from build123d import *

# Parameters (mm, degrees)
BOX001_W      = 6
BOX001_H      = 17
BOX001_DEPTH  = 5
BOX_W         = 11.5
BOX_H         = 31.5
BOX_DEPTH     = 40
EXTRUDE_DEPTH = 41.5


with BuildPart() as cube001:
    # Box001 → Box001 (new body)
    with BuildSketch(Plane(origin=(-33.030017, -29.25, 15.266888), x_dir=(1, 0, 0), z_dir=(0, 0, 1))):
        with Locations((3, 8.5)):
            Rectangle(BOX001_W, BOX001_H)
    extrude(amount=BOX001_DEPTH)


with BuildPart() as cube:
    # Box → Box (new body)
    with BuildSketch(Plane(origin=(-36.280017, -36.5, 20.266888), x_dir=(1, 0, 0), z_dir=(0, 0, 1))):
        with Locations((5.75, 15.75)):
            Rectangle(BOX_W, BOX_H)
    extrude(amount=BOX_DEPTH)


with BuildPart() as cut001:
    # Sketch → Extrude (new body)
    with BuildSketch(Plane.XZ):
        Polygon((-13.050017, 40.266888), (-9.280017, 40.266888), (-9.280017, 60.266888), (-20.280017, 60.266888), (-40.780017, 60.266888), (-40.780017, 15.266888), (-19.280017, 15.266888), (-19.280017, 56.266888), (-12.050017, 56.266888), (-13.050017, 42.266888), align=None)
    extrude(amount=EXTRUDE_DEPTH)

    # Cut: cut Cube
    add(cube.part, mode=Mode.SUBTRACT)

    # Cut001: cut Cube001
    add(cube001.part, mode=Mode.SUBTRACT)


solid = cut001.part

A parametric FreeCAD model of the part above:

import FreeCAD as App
import Part
import Sketcher
from FreeCAD import Vector
Q = App.Units.Quantity


def add_polygon(sketch, points):
    """Adds a closed chain of lines whose ends are joined by coincident constraints."""
    first, n = sketch.GeometryCount, len(points)
    for a, b in zip(points, points[1:] + points[:1]):
        sketch.addGeometry(Part.LineSegment(App.Vector(*a, 0), App.Vector(*b, 0)), False)
    for i in range(n):
        sketch.addConstraint(Sketcher.Constraint("Coincident", first + i, 2, first + (i + 1) % n, 1))

doc = App.newDocument("Part")
params = doc.addObject("Spreadsheet::Sheet", "Params")
for row, (alias, value) in enumerate([
    ("sketch1_width", "6 mm"),
    ("sketch1_height", "17 mm"),
    ("pad1_length", "5 mm"),
    ("sketch2_width", "11.5 mm"),
    ("sketch2_height", "31.5 mm"),
    ("pad2_length", "40 mm"),
    ("sketch3_height", "20 mm"),
    ("sketch3_height2", "45 mm"),
    ("sketch3_height3", "41 mm"),
    ("sketch3_height4", "2 mm"),
    ("sketch3_width", "31.5 mm"),
    ("pad3_length", "41.5 mm"),
], start=1):
    params.set(f"A{row}", alias)
    params.set(f"B{row}", "=" + value)
    params.setAlias(f"B{row}", alias)

body = doc.addObject("PartDesign::Body", "Body")

sketch1 = doc.addObject("Sketcher::SketchObject", "Sketch")
body.addObject(sketch1)
sketch1.AttachmentSupport = (doc.XY_Plane, [""])
sketch1.MapMode = "FlatFace"
sketch1.AttachmentOffset = App.Placement(Vector(0, 0, 15.266888), App.Rotation())
add_polygon(sketch1, [(-33.030017, -12.25), (-33.030017, -29.25), (-27.030017, -29.25), (-27.030017, -12.25)])
sketch1.addConstraint([
    Sketcher.Constraint("Vertical", 0),
    Sketcher.Constraint("Horizontal", 1),
    Sketcher.Constraint("Vertical", 2),
    Sketcher.Constraint("Horizontal", 3),
    Sketcher.Constraint("DistanceX", 1, 1, 1, 2, Q("6 mm")),
    Sketcher.Constraint("DistanceY", 0, 2, 0, 1, Q("17 mm")),
    Sketcher.Constraint("DistanceY", 0, 2, -1, 1, Q("29.25 mm")),
    Sketcher.Constraint("DistanceX", 0, 2, -1, 1, Q("33.030017 mm")),
])
sketch1.setExpression("Constraints[8]", "Params.sketch1_width")
sketch1.setExpression("Constraints[9]", "Params.sketch1_height")
pad1 = doc.addObject("PartDesign::Pad", "Pad")
body.addObject(pad1)
pad1.Profile = sketch1
pad1.setExpression("Length", "Params.pad1_length")
body2 = doc.addObject("PartDesign::Body", "Body001")

sketch2 = doc.addObject("Sketcher::SketchObject", "Sketch001")
body2.addObject(sketch2)
sketch2.AttachmentSupport = (doc.getObject("XY_Plane001"), [""])
sketch2.MapMode = "FlatFace"
sketch2.AttachmentOffset = App.Placement(Vector(0, 0, 20.266888), App.Rotation())
add_polygon(sketch2, [(-36.280017, -5), (-36.280017, -36.5), (-24.780017, -36.5), (-24.780017, -5)])
sketch2.addConstraint([
    Sketcher.Constraint("Vertical", 0),
    Sketcher.Constraint("Horizontal", 1),
    Sketcher.Constraint("Vertical", 2),
    Sketcher.Constraint("Horizontal", 3),
    Sketcher.Constraint("DistanceX", 1, 1, 1, 2, Q("11.5 mm")),
    Sketcher.Constraint("DistanceY", 0, 2, 0, 1, Q("31.5 mm")),
    Sketcher.Constraint("DistanceY", 2, 2, -1, 1, Q("5 mm")),
    Sketcher.Constraint("DistanceX", 0, 2, -1, 1, Q("36.280017 mm")),
])
sketch2.setExpression("Constraints[8]", "Params.sketch2_width")
sketch2.setExpression("Constraints[9]", "Params.sketch2_height")
pad2 = doc.addObject("PartDesign::Pad", "Pad001")
body2.addObject(pad2)
pad2.Profile = sketch2
pad2.setExpression("Length", "Params.pad2_length")
body3 = doc.addObject("PartDesign::Body", "Body002")

sketch3 = doc.addObject("Sketcher::SketchObject", "Sketch002")
body3.addObject(sketch3)
sketch3.AttachmentSupport = (doc.getObject("XZ_Plane002"), [""])
sketch3.MapMode = "FlatFace"
add_polygon(sketch3, [(-13.050017, 40.266888), (-9.280017, 40.266888), (-9.280017, 60.266888), (-40.780017, 60.266888), (-40.780017, 15.266888), (-19.280017, 15.266888), (-19.280017, 56.266888), (-12.050017, 56.266888), (-13.050017, 42.266888)])
sketch3.addConstraint([
    Sketcher.Constraint("Horizontal", 0),
    Sketcher.Constraint("Vertical", 1),
    Sketcher.Constraint("Horizontal", 2),
    Sketcher.Constraint("Vertical", 3),
    Sketcher.Constraint("Horizontal", 4),
    Sketcher.Constraint("Vertical", 5),
    Sketcher.Constraint("Horizontal", 6),
    Sketcher.Constraint("Vertical", 8),
    Sketcher.Constraint("DistanceY", 1, 1, 1, 2, Q("20 mm")),
    Sketcher.Constraint("DistanceY", 3, 2, 3, 1, Q("45 mm")),
    Sketcher.Constraint("DistanceY", 5, 1, 5, 2, Q("41 mm")),
    Sketcher.Constraint("DistanceY", 8, 2, 8, 1, Q("2 mm")),
    Sketcher.Constraint("DistanceX", 2, 2, 2, 1, Q("31.5 mm")),
    Sketcher.Constraint("DistanceX", 4, 1, 4, 2, Q("21.5 mm")),
    Sketcher.Constraint("DistanceX", 7, 2, 6, 2, Q("1 mm")),
    Sketcher.Constraint("DistanceX", 0, 1, 0, 2, Q("3.77 mm")),
    Sketcher.Constraint("DistanceY", -1, 1, 0, 2, Q("40.266888 mm")),
    Sketcher.Constraint("DistanceX", 0, 2, -1, 1, Q("9.280017 mm")),
])
sketch3.setExpression("Constraints[17]", "Params.sketch3_height")
sketch3.setExpression("Constraints[18]", "Params.sketch3_height2")
sketch3.setExpression("Constraints[19]", "Params.sketch3_height3")
sketch3.setExpression("Constraints[20]", "Params.sketch3_height4")
sketch3.setExpression("Constraints[21]", "Params.sketch3_width")
pad3 = doc.addObject("PartDesign::Pad", "Pad002")
body3.addObject(pad3)
pad3.Profile = sketch3
pad3.setExpression("Length", "Params.pad3_length")
doc.recompute()

boolean = doc.addObject("PartDesign::Boolean", "Boolean")
body3.addObject(boolean)
boolean.Type = "Cut"
boolean.addObjects([body2])
doc.recompute()

boolean2 = doc.addObject("PartDesign::Boolean", "Boolean001")
body3.addObject(boolean2)
boolean2.Type = "Cut"
boolean2.addObjects([body])

doc.recompute()
